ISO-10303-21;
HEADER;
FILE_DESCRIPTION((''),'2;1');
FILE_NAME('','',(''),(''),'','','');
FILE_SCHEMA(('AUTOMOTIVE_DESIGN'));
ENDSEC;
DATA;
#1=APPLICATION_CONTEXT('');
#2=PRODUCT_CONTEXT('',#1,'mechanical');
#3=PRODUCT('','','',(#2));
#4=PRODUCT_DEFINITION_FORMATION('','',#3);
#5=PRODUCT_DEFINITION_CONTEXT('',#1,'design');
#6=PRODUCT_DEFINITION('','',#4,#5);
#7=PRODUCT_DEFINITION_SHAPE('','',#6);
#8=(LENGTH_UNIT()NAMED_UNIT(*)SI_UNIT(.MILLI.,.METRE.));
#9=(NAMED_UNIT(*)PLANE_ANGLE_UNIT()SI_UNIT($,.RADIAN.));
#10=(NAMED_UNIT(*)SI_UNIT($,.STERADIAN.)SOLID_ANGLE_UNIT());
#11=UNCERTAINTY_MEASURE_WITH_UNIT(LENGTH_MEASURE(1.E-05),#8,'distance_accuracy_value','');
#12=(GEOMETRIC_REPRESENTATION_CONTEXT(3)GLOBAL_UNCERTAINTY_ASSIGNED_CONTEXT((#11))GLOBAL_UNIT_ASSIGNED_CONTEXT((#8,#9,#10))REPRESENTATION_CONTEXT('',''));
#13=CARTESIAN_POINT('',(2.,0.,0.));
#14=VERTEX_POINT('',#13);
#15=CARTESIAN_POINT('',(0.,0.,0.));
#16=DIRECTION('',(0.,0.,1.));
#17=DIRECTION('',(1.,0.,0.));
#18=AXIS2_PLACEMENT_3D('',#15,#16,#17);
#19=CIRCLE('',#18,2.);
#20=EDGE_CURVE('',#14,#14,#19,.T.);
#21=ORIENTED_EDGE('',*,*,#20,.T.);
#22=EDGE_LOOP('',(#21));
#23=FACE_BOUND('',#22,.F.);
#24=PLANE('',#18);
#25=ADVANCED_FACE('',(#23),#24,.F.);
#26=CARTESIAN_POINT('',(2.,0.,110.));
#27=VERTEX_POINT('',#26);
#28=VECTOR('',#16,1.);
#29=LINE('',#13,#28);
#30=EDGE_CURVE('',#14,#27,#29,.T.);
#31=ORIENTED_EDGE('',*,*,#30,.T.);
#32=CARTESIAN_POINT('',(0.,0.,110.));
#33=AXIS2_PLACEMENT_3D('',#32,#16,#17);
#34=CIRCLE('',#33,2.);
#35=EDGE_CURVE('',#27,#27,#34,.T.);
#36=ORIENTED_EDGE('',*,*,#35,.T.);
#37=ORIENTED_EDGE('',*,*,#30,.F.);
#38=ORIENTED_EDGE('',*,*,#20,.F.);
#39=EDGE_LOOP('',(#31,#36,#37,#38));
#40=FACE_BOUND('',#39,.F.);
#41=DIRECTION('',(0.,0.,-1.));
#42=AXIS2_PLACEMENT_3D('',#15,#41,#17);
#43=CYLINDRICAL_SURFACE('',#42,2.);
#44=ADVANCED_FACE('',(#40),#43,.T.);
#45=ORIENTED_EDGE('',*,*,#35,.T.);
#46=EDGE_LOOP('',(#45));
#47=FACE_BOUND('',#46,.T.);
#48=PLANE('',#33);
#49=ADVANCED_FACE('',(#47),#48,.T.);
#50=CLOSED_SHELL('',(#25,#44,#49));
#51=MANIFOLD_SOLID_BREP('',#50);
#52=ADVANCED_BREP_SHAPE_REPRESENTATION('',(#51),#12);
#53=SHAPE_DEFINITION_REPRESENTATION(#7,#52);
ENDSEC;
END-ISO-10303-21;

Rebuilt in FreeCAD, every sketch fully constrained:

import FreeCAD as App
import Part
import Sketcher

doc = App.newDocument("Part")
body = doc.addObject("PartDesign::Body", "Body")

sketch1 = doc.addObject("Sketcher::SketchObject", "Sketch")
body.addObject(sketch1)
sketch1.AttachmentSupport = (doc.XY_Plane, [""])
sketch1.MapMode = "FlatFace"
sketch1.addGeometry(Part.Circle(App.Vector(0, 0, 0), App.Vector(0, 0, 1), 2), False)
sketch1.addConstraint(Sketcher.Constraint("Coincident", 0, 3, -1, 1))
sketch1.addConstraint(Sketcher.Constraint("Diameter", 0, 4.0))
pad1 = doc.addObject("PartDesign::Pad", "Pad")
body.addObject(pad1)
pad1.Profile = sketch1
pad1.Length = 110

doc.recompute()
